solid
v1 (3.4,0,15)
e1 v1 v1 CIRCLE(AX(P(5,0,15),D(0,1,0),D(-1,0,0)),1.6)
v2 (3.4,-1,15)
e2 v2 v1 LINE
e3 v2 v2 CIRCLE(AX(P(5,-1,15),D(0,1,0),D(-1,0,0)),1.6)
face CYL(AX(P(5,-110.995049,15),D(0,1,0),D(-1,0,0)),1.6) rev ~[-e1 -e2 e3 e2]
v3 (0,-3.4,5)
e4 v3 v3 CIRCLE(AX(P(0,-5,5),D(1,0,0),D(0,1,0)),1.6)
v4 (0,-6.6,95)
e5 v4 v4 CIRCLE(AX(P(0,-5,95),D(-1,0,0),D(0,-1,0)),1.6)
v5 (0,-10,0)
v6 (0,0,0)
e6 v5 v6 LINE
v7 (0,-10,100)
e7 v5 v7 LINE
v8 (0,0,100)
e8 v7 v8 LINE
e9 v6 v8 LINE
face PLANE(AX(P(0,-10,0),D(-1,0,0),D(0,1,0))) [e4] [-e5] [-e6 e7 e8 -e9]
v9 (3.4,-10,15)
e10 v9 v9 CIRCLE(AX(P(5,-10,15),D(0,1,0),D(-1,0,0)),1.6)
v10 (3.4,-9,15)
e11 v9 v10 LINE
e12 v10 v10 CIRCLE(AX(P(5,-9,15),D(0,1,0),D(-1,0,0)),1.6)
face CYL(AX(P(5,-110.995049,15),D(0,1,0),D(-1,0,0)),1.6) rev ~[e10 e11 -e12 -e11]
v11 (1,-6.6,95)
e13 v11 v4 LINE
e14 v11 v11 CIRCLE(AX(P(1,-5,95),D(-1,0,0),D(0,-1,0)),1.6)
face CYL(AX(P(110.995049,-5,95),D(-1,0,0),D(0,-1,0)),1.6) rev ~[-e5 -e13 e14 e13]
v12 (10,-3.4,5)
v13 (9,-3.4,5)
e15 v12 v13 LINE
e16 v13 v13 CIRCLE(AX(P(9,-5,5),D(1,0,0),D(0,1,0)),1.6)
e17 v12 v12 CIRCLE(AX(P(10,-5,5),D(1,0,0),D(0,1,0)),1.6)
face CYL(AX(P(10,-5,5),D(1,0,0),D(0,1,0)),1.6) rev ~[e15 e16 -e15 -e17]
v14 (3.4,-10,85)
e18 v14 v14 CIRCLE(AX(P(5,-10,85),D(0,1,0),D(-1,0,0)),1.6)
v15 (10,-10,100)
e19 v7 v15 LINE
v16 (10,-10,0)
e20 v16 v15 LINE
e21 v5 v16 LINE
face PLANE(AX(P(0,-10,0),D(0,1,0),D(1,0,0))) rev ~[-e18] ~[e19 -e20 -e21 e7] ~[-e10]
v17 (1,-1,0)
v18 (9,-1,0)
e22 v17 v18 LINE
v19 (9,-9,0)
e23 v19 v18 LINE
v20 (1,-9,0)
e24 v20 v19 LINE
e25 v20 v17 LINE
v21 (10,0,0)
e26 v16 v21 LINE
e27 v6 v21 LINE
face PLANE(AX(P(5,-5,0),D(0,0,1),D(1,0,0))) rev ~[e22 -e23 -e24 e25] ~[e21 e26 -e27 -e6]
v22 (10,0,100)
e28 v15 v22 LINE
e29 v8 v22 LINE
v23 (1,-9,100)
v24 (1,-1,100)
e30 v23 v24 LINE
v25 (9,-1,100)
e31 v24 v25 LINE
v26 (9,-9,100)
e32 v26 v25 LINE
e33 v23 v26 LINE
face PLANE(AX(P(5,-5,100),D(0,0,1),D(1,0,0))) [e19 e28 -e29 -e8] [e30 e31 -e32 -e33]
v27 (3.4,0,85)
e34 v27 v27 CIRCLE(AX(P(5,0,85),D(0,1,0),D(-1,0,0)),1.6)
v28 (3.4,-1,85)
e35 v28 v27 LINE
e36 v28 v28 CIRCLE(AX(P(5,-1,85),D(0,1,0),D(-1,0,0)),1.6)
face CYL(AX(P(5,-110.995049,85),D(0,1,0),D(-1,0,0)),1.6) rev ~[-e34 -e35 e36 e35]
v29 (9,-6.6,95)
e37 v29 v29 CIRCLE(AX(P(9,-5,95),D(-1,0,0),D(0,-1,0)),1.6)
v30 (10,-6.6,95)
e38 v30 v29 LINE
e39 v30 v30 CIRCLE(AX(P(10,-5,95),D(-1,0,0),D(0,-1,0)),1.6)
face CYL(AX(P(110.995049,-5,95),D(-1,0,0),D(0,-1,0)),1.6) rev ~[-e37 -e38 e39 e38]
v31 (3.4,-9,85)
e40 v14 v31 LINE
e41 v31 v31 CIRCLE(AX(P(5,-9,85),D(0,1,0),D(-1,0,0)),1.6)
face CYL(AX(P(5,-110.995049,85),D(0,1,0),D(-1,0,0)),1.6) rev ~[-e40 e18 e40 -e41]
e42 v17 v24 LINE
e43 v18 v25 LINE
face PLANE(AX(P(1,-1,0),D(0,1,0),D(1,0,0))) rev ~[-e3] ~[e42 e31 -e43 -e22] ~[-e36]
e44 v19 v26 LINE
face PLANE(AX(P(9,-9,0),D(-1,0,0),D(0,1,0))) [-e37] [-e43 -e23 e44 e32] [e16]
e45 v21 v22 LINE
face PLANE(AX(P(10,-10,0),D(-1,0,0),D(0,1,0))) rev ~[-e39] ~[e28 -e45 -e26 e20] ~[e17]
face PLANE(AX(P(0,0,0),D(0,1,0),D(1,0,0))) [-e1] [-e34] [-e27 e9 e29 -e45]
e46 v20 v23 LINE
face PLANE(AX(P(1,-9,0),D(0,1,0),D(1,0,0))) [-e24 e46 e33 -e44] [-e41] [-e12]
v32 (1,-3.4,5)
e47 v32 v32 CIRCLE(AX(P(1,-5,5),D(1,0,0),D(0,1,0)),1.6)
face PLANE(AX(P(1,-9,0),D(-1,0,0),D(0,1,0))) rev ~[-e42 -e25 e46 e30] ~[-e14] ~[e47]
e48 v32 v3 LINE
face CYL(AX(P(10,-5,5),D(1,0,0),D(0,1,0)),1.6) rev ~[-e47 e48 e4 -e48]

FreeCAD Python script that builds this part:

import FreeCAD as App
import Part
import Sketcher


def add_polygon(sketch, points):
    """Adds a closed chain of lines whose ends are joined by coincident constraints."""
    first, n = sketch.GeometryCount, len(points)
    for a, b in zip(points, points[1:] + points[:1]):
        sketch.addGeometry(Part.LineSegment(App.Vector(*a, 0), App.Vector(*b, 0)), False)
    for i in range(n):
        sketch.addConstraint(Sketcher.Constraint("Coincident", first + i, 2, first + (i + 1) % n, 1))

doc = App.newDocument("Part")
body = doc.addObject("PartDesign::Body", "Body")

# Sketch on XY plane
sketch1 = body.newObject("Sketcher::SketchObject", "Sketch")
sketch1.AttachmentSupport = (doc.getObject("XY_Plane"), [""])
sketch1.MapMode = "FlatFace"
add_polygon(sketch1, [(0, 0), (0, -10), (10, -10), (10, 0)])  # lines 0-3
add_polygon(sketch1, [(9, -9), (1, -9), (1, -1), (9, -1)])  # lines 4-7
sketch1.addConstraint(Sketcher.Constraint("Vertical", 0))
sketch1.addConstraint(Sketcher.Constraint("Horizontal", 1))
sketch1.addConstraint(Sketcher.Constraint("Vertical", 2))
sketch1.addConstraint(Sketcher.Constraint("Horizontal", 3))
sketch1.addConstraint(Sketcher.Constraint("Horizontal", 4))
sketch1.addConstraint(Sketcher.Constraint("Vertical", 5))
sketch1.addConstraint(Sketcher.Constraint("Horizontal", 6))
sketch1.addConstraint(Sketcher.Constraint("Vertical", 7))
sketch1.addConstraint(Sketcher.Constraint("Coincident", 3, 2, -1, 1))
sketch1.addConstraint(Sketcher.Constraint("Equal", 3, 0))
sketch1.addConstraint(Sketcher.Constraint("Equal", 6, 5))
sketch1.addConstraint(Sketcher.Constraint("DistanceX", 1, 1, 1, 2, 10.0))
sketch1.addConstraint(Sketcher.Constraint("DistanceX", 4, 2, 4, 1, 8.0))
sketch1.addConstraint(Sketcher.Constraint("DistanceX", -1, 1, 4, 2, 1.0))
sketch1.addConstraint(Sketcher.Constraint("DistanceY", 4, 2, -1, 1, 9.0))
pad1 = body.newObject("PartDesign::Pad", "Pad")
pad1.Profile = sketch1
pad1.Length = 100

# Sketch on YZ plane
sketch2 = body.newObject("Sketcher::SketchObject", "Sketch001")
sketch2.AttachmentSupport = (doc.getObject("YZ_Plane"), [""])
sketch2.MapMode = "FlatFace"
sketch2.AttachmentOffset = App.Placement(App.Vector(0, 0, 10), App.Rotation())
sketch2.addGeometry(Part.Circle(App.Vector(-5, 5, 0), App.Vector(0, 0, 1), 1.6), False)
sketch2.addConstraint(Sketcher.Constraint("Diameter", 0, 3.2))
sketch2.addConstraint(Sketcher.Constraint("DistanceX", 0, 3, -1, 1, 5.0))
sketch2.addConstraint(Sketcher.Constraint("DistanceY", -1, 1, 0, 3, 5.0))
pocket1 = body.newObject("PartDesign::Pocket", "Pocket")
pocket1.Profile = sketch2
pocket1.Length = 25

# Sketch on YZ plane
sketch3 = body.newObject("Sketcher::SketchObject", "Sketch002")
sketch3.AttachmentSupport = (doc.getObject("YZ_Plane"), [""])
sketch3.MapMode = "FlatFace"
sketch3.AttachmentOffset = App.Placement(App.Vector(0, 0, 10), App.Rotation())
sketch3.addGeometry(Part.Circle(App.Vector(-5, 95, 0), App.Vector(0, 0, 1), 1.6), False)
sketch3.addConstraint(Sketcher.Constraint("Diameter", 0, 3.2))
sketch3.addConstraint(Sketcher.Constraint("DistanceX", 0, 3, -1, 1, 5.0))
sketch3.addConstraint(Sketcher.Constraint("DistanceY", -1, 1, 0, 3, 95.0))
doc.recompute()
hole = body.newObject("PartDesign::Hole", "Hole")
hole.Profile = sketch3
hole.ThreadType = "None"
hole.Diameter = 3.2
hole.DepthType = "ThroughAll"

# Sketch on XZ plane
sketch4 = body.newObject("Sketcher::SketchObject", "Sketch003")
sketch4.AttachmentSupport = (doc.getObject("XZ_Plane"), [""])
sketch4.MapMode = "FlatFace"
sketch4.AttachmentOffset = App.Placement(App.Vector(0, 0, 10), App.Rotation())
sketch4.addGeometry(Part.Circle(App.Vector(5, 15, 0), App.Vector(0, 0, 1), 1.6), False)
sketch4.addGeometry(Part.Circle(App.Vector(5, 85, 0), App.Vector(0, 0, 1), 1.6), False)
sketch4.addConstraint(Sketcher.Constraint("Equal", 0, 1))
sketch4.addConstraint(Sketcher.Constraint("Vertical", 0, 3, 1, 3))
sketch4.addConstraint(Sketcher.Constraint("Diameter", 0, 3.2))
sketch4.addConstraint(Sketcher.Constraint("DistanceX", -1, 1, 0, 3, 5.0))
sketch4.addConstraint(Sketcher.Constraint("DistanceY", -1, 1, 0, 3, 15.0))
sketch4.addConstraint(Sketcher.Constraint("DistanceY", -1, 1, 1, 3, 85.0))
doc.recompute()
hole2 = body.newObject("PartDesign::Hole", "Hole001")
hole2.Profile = sketch4
hole2.ThreadType = "None"
hole2.Diameter = 3.2
hole2.DepthType = "ThroughAll"

doc.recompute()
